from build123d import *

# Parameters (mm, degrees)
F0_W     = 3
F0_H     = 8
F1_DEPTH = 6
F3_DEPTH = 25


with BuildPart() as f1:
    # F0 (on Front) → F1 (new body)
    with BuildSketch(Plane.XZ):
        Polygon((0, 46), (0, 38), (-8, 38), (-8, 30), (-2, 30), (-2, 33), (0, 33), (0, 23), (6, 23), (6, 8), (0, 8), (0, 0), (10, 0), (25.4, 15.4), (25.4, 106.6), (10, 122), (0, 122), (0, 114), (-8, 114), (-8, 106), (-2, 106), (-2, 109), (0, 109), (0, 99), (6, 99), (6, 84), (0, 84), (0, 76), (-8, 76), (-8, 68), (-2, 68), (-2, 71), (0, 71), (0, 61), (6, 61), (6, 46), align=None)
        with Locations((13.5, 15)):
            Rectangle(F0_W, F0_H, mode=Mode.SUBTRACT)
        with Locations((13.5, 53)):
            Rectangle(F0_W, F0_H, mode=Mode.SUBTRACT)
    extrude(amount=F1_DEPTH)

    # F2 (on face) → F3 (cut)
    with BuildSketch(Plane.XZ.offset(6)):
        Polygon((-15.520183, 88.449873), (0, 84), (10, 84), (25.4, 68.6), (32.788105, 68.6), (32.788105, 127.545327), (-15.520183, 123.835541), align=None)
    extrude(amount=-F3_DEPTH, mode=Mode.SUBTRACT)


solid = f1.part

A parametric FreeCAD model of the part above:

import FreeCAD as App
import Part
import Sketcher
from FreeCAD import Vector
Q = App.Units.Quantity


def add_polygon(sketch, points):
    """Adds a closed chain of lines whose ends are joined by coincident constraints."""
    first, n = sketch.GeometryCount, len(points)
    for a, b in zip(points, points[1:] + points[:1]):
        sketch.addGeometry(Part.LineSegment(App.Vector(*a, 0), App.Vector(*b, 0)), False)
    for i in range(n):
        sketch.addConstraint(Sketcher.Constraint("Coincident", first + i, 2, first + (i + 1) % n, 1))

doc = App.newDocument("Part")
body = doc.addObject("PartDesign::Body", "Body")

# Sketch on XZ plane
sketch1 = body.newObject("Sketcher::SketchObject", "Sketch")
sketch1.AttachmentSupport = (doc.getObject("XZ_Plane"), [""])
sketch1.MapMode = "FlatFace"
add_polygon(sketch1, [(0, 46), (0, 38), (-8, 38), (-8, 30), (-2, 30), (-2, 33), (0, 33), (0, 23), (6, 23), (6, 8), (0, 8), (0, 0), (10, 0), (25.4, 15.4), (25.4, 106.6), (10, 122), (0, 122), (0, 114), (-8, 114), (-8, 106), (-2, 106), (-2, 109), (0, 109), (0, 99), (6, 99), (6, 84), (0, 84), (0, 76), (-8, 76), (-8, 68), (-2, 68), (-2, 71), (0, 71), (0, 61), (6, 61), (6, 46)])  # lines 0-35
add_polygon(sketch1, [(15, 11), (12, 11), (12, 19), (15, 19)])  # lines 36-39
add_polygon(sketch1, [(15, 49), (12, 49), (12, 57), (15, 57)])  # lines 40-43
sketch1.addConstraint([
    Sketcher.Constraint("Vertical", 0),
    Sketcher.Constraint("Horizontal", 1),
    Sketcher.Constraint("Vertical", 2),
    Sketcher.Constraint("Horizontal", 3),
    Sketcher.Constraint("Vertical", 4),
    Sketcher.Constraint("Horizontal", 5),
    Sketcher.Constraint("Vertical", 6),
    Sketcher.Constraint("Horizontal", 7),
    Sketcher.Constraint("Vertical", 8),
    Sketcher.Constraint("Horizontal", 9),
    Sketcher.Constraint("Vertical", 10),
    Sketcher.Constraint("Horizontal", 11),
    Sketcher.Constraint("Vertical", 13),
    Sketcher.Constraint("Horizontal", 15),
    Sketcher.Constraint("Vertical", 16),
    Sketcher.Constraint("Horizontal", 17),
    Sketcher.Constraint("Vertical", 18),
    Sketcher.Constraint("Horizontal", 19),
    Sketcher.Constraint("Vertical", 20),
    Sketcher.Constraint("Horizontal", 21),
    Sketcher.Constraint("Vertical", 22),
    Sketcher.Constraint("Horizontal", 23),
    Sketcher.Constraint("Vertical", 24),
    Sketcher.Constraint("Horizontal", 25),
    Sketcher.Constraint("Vertical", 26),
    Sketcher.Constraint("Horizontal", 27),
    Sketcher.Constraint("Vertical", 28),
    Sketcher.Constraint("Horizontal", 29),
    Sketcher.Constraint("Vertical", 30),
    Sketcher.Constraint("Horizontal", 31),
    Sketcher.Constraint("Vertical", 32),
    Sketcher.Constraint("Horizontal", 33),
    Sketcher.Constraint("Vertical", 34),
    Sketcher.Constraint("Horizontal", 35),
    Sketcher.Constraint("Horizontal", 36),
    Sketcher.Constraint("Vertical", 37),
    Sketcher.Constraint("Horizontal", 38),
    Sketcher.Constraint("Vertical", 39),
    Sketcher.Constraint("Horizontal", 40),
    Sketcher.Constraint("Vertical", 41),
    Sketcher.Constraint("Horizontal", 42),
    Sketcher.Constraint("Vertical", 43),
    Sketcher.Constraint("Coincident", 10, 2, -1, 1),
    Sketcher.Constraint("PointOnObject", 0, 2, -2),
    Sketcher.Constraint("PointOnObject", 5, 2, -2),
    Sketcher.Constraint("PointOnObject", 15, 2, -2),
    Sketcher.Constraint("PointOnObject", 21, 2, -2),
    Sketcher.Constraint("PointOnObject", 25, 2, -2),
    Sketcher.Constraint("PointOnObject", 31, 2, -2),
    Sketcher.Constraint("Perpendicular", 12, 14),
    Sketcher.Constraint("Vertical", 11, 2, 14, 2),
    Sketcher.Constraint("Vertical", 2, 2, 17, 2),
    Sketcher.Constraint("Vertical", 4, 2, 19, 2),
    Sketcher.Constraint("Vertical", 8, 2, 23, 2),
    Sketcher.Constraint("Vertical", 18, 2, 27, 2),
    Sketcher.Constraint("Vertical", 20, 2, 29, 2),
    Sketcher.Constraint("Vertical", 24, 2, 33, 2),
    Sketcher.Constraint("Vertical", 37, 2, 40, 2),
    Sketcher.Constraint("Vertical", 39, 2, 42, 2),
    Sketcher.Constraint("Equal", 3, 7),
    Sketcher.Constraint("Equal", 27, 0),
    Sketcher.Constraint("Equal", 0, 2),
    Sketcher.Constraint("Equal", 42, 4),
    Sketcher.Constraint("Equal", 15, 6),
    Sketcher.Constraint("Equal", 2, 10),
    Sketcher.Constraint("Equal", 10, 16),
    Sketcher.Constraint("Equal", 16, 18),
    Sketcher.Constraint("Equal", 4, 20),
    Sketcher.Constraint("Equal", 6, 22),
    Sketcher.Constraint("Equal", 8, 24),
    Sketcher.Constraint("Equal", 18, 26),
    Sketcher.Constraint("Equal", 26, 28),
    Sketcher.Constraint("Equal", 20, 30),
    Sketcher.Constraint("Equal", 22, 32),
    Sketcher.Constraint("Equal", 24, 34),
    Sketcher.Constraint("Equal", 28, 37),
    Sketcher.Constraint("Equal", 39, 41),
    Sketcher.Constraint("Equal", 12, 14),
    Sketcher.Constraint("DistanceX", 1, 2, 1, 1, 8.0),
    Sketcher.Constraint("DistanceX", 3, 1, 3, 2, 6.0),
    Sketcher.Constraint("DistanceX", 11, 1, 11, 2, 10.0),
    Sketcher.Constraint("DistanceX", 36, 2, 36, 1, 3.0),
    Sketcher.Constraint("DistanceY", 8, 2, 8, 1, 15.0),
    Sketcher.Constraint("DistanceY", 13, 1, 13, 2, 91.2),
    Sketcher.Constraint("DistanceX", -1, 1, 36, 2, 12.0),
    Sketcher.Constraint("DistanceY", -1, 1, 36, 2, 11.0),
    Sketcher.Constraint("DistanceY", -1, 1, 40, 2, 49.0),
])
pad1 = body.newObject("PartDesign::Pad", "Pad")
pad1.Profile = sketch1
pad1.Length = 6

# Sketch on XZ plane
sketch2 = body.newObject("Sketcher::SketchObject", "Sketch001")
sketch2.AttachmentSupport = (doc.getObject("XZ_Plane"), [""])
sketch2.MapMode = "FlatFace"
sketch2.AttachmentOffset = App.Placement(Vector(0, 0, 6), App.Rotation())
add_polygon(sketch2, [(-16, 88), (0, 84), (10, 84), (25, 69), (33, 69), (33, 128), (-16, 124)])  # lines 0-6
sketch2.addConstraint([
    Sketcher.Constraint("Horizontal", 1),
    Sketcher.Constraint("Horizontal", 3),
    Sketcher.Constraint("Vertical", 4),
    Sketcher.Constraint("Vertical", 6),
    Sketcher.Constraint("PointOnObject", 0, 2, -2),
    Sketcher.Constraint("DistanceX", 1, 1, 1, 2, 10.0),
    Sketcher.Constraint("Angle", 2, Q("-45 deg")),
    Sketcher.Constraint("DistanceY", -1, 1, 0, 2, 84.0),
    Sketcher.Constraint("DistanceX", -1, 1, 2, 2, 25.4),
    Sketcher.Constraint("DistanceY", 6, 2, 6, 1, 35.385668),
    Sketcher.Constraint("Distance", 0, 16.145509),
    Sketcher.Constraint("DistanceX", 3, 1, 3, 2, 7.388105),
    Sketcher.Constraint("DistanceY", 4, 1, 4, 2, 58.945327),
    Sketcher.Constraint("DistanceY", -1, 1, 5, 2, 123.835541),
])
pocket1 = body.newObject("PartDesign::Pocket", "Pocket")
pocket1.Profile = sketch2
pocket1.Length = 25

doc.recompute()
